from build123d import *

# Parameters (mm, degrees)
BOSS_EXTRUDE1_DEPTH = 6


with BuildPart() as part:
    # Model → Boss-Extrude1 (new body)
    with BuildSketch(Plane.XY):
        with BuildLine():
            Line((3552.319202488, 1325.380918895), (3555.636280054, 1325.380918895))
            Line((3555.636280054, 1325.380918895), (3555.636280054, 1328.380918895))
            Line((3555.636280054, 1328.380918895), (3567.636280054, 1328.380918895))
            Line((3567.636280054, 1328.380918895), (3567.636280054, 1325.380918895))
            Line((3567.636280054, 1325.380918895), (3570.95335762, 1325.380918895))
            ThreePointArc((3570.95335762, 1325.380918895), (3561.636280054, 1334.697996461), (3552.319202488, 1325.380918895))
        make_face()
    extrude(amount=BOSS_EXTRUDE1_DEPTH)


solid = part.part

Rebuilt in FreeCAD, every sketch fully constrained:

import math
import FreeCAD as App
import Part
import Sketcher

doc = App.newDocument("Part")
body = doc.addObject("PartDesign::Body", "Body")

sketch1 = doc.addObject("Sketcher::SketchObject", "Sketch")
body.addObject(sketch1)
sketch1.AttachmentSupport = (doc.XY_Plane, [""])
sketch1.MapMode = "FlatFace"
sketch1.addGeometry([
    Part.LineSegment(App.Vector(3552.3, 1325.4, 0), App.Vector(3555.6, 1325.4, 0)),
    Part.LineSegment(App.Vector(3555.6, 1325.4, 0), App.Vector(3555.6, 1328.4, 0)),
    Part.LineSegment(App.Vector(3555.6, 1328.4, 0), App.Vector(3567.6, 1328.4, 0)),
    Part.LineSegment(App.Vector(3567.6, 1328.4, 0), App.Vector(3567.6, 1325.4, 0)),
    Part.LineSegment(App.Vector(3567.6, 1325.4, 0), App.Vector(3571, 1325.4, 0)),
    Part.ArcOfCircle(Part.Circle(App.Vector(3561.6, 1325.4, 0), App.Vector(0, 0, 1), 9.3), math.radians(0), math.radians(180)),
], False)
sketch1.addConstraint([
    Sketcher.Constraint("Coincident", 0, 2, 1, 1),
    Sketcher.Constraint("Coincident", 1, 2, 2, 1),
    Sketcher.Constraint("Coincident", 2, 2, 3, 1),
    Sketcher.Constraint("Coincident", 3, 2, 4, 1),
    Sketcher.Constraint("Coincident", 4, 2, 5, 1),
    Sketcher.Constraint("Coincident", 5, 2, 0, 1),
    Sketcher.Constraint("Horizontal", 0),
    Sketcher.Constraint("Vertical", 1),
    Sketcher.Constraint("Horizontal", 2),
    Sketcher.Constraint("Vertical", 3),
    Sketcher.Constraint("Horizontal", 4),
    Sketcher.Constraint("Horizontal", 5, 3, 0, 2),
    Sketcher.Constraint("Horizontal", 0, 2, 3, 2),
    Sketcher.Constraint("Equal", 0, 4),
    Sketcher.Constraint("DistanceX", 2, 1, 2, 2, 12.0),
    Sketcher.Constraint("DistanceY", 1, 1, 1, 2, 3.0),
    Sketcher.Constraint("Radius", 5, 9.317078),
    Sketcher.Constraint("DistanceX", -1, 1, 5, 3, 3561.63628),
    Sketcher.Constraint("DistanceY", -1, 1, 5, 3, 1325.380919),
])
pad1 = doc.addObject("PartDesign::Pad", "Pad")
body.addObject(pad1)
pad1.Profile = sketch1
pad1.Length = 6

doc.recompute()
